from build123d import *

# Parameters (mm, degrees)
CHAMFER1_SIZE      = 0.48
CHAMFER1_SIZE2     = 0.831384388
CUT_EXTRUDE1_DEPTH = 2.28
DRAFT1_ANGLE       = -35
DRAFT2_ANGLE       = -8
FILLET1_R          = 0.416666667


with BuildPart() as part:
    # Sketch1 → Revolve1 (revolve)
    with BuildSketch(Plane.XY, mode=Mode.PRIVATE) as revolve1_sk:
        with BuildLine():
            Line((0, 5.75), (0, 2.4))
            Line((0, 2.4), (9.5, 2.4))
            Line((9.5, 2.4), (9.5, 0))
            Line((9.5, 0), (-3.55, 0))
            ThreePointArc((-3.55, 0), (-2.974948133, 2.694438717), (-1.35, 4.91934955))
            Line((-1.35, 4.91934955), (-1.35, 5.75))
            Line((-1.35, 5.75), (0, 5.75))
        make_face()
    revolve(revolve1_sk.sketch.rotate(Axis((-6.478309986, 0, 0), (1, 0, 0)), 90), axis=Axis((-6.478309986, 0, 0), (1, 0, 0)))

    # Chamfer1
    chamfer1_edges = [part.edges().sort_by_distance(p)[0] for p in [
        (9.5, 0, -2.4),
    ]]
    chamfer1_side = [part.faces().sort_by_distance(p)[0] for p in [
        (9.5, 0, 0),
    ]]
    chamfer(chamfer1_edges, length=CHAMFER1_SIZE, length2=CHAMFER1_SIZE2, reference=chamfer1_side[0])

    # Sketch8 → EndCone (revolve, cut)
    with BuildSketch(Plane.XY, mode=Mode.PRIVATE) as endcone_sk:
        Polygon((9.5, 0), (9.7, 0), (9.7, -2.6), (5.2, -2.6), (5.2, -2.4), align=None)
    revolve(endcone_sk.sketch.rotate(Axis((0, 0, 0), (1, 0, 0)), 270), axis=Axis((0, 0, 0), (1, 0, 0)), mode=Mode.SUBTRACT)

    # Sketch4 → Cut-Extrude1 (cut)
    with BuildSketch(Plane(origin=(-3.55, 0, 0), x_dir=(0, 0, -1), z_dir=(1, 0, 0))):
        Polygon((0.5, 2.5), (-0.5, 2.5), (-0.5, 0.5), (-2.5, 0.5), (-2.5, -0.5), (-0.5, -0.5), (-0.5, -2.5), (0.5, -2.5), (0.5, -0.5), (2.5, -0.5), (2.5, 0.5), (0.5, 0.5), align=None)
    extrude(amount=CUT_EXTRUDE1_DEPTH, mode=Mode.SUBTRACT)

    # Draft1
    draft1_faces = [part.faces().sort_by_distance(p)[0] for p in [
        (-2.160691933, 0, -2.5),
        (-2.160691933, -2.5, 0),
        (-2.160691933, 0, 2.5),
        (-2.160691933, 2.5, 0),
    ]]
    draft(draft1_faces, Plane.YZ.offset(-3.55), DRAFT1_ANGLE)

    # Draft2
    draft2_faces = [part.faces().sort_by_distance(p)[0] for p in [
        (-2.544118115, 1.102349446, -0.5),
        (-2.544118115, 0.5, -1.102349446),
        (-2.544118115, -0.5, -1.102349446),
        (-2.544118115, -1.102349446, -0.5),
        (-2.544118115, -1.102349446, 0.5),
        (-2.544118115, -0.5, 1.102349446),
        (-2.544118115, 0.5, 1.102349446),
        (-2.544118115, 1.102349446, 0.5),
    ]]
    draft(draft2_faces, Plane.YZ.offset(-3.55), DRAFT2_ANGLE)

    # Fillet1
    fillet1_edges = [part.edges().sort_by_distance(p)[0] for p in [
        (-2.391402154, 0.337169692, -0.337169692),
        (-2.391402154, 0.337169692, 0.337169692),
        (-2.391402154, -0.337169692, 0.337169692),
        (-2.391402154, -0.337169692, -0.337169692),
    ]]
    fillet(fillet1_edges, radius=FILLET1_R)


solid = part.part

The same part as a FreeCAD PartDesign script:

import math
import FreeCAD as App
import Part
import Sketcher

V = App.Vector


def edges_at(feature, points):
    """Names of the edges that pass closest to the given points."""
    edges = feature.Shape.Edges
    near = lambda p: min(range(len(edges)), key=lambda i: edges[i].distToShape(Part.Vertex(*p))[0])
    return sorted({f"Edge{near(p) + 1}" for p in points})


def faces_at(feature, points):
    """Names of the faces that lie closest to the given points."""
    faces = feature.Shape.Faces
    near = lambda p: min(range(len(faces)), key=lambda i: faces[i].distToShape(Part.Vertex(*p))[0])
    return sorted({f"Face{near(p) + 1}" for p in points})

doc = App.newDocument("Part")
body = doc.addObject("PartDesign::Body", "Body")

sketch1 = body.newObject("Sketcher::SketchObject", "Sketch")
sketch1.AttachmentSupport = (doc.getObject("XY_Plane"), [""])
sketch1.MapMode = "FlatFace"
sketch1.addGeometry([
    Part.LineSegment(V(0, 2.4, 0), V(0, 5.75, 0)),
    Part.LineSegment(V(0, 5.75, 0), V(-1.35, 5.75, 0)),
    Part.LineSegment(V(-1.35, 5.75, 0), V(-1.35, 4.91935, 0)),
    Part.ArcOfCircle(Part.Circle(V(3.05, 0, 0), V(0, 0, 1), 6.6), math.radians(131.810315), math.radians(180)),
    Part.LineSegment(V(-3.55, 0, 0), V(9.5, 0, 0)),
    Part.LineSegment(V(9.5, 0, 0), V(9.5, 2.4, 0)),
    Part.LineSegment(V(9.5, 2.4, 0), V(0, 2.4, 0)),
], False)
sketch1.addConstraint([
    Sketcher.Constraint("Coincident", 0, 2, 1, 1),
    Sketcher.Constraint("Coincident", 1, 2, 2, 1),
    Sketcher.Constraint("Coincident", 2, 2, 3, 1),
    Sketcher.Constraint("Coincident", 3, 2, 4, 1),
    Sketcher.Constraint("Coincident", 4, 2, 5, 1),
    Sketcher.Constraint("Coincident", 5, 2, 6, 1),
    Sketcher.Constraint("Coincident", 6, 2, 0, 1),
    Sketcher.Constraint("Vertical", 0),
    Sketcher.Constraint("Horizontal", 1),
    Sketcher.Constraint("Vertical", 2),
    Sketcher.Constraint("Horizontal", 4),
    Sketcher.Constraint("Vertical", 5),
    Sketcher.Constraint("Horizontal", 6),
    Sketcher.Constraint("PointOnObject", 3, 3, -1),
    Sketcher.Constraint("PointOnObject", 0, 2, -2),
    Sketcher.Constraint("PointOnObject", 3, 2, -1),
    Sketcher.Constraint("Radius", 3, 6.6),
    Sketcher.Constraint("DistanceX", 6, 2, 6, 1, 9.5),
    Sketcher.Constraint("DistanceY", 5, 1, 5, 2, 2.4),
    Sketcher.Constraint("DistanceX", 1, 2, 1, 1, 1.35),
    Sketcher.Constraint("DistanceX", 4, 1, 4, 2, 13.05),
    Sketcher.Constraint("DistanceY", 0, 1, 0, 2, 3.35),
])
revolution = body.newObject("PartDesign::Revolution", "Revolution")
revolution.Profile = sketch1
revolution.ReferenceAxis = (sketch1, ["H_Axis"])
revolution.Angle = 360
doc.recompute()

chamfer = body.newObject("PartDesign::Chamfer", "Chamfer")
chamfer.Base = (revolution, edges_at(revolution, [(9.5, 0, -2.4)]))
chamfer.ChamferType = "Two distances"
chamfer.Size = 0.48
chamfer.Size2 = 0.831384

sketch2 = body.newObject("Sketcher::SketchObject", "Sketch001")
sketch2.AttachmentSupport = (doc.getObject("XY_Plane"), [""])
sketch2.MapMode = "FlatFace"
sketch2.addGeometry([
    Part.LineSegment(V(9.7, 0, 0), V(9.5, 0, 0)),
    Part.LineSegment(V(9.5, 0, 0), V(5.2, -2.4, 0)),
    Part.LineSegment(V(5.2, -2.4, 0), V(5.2, -2.6, 0)),
    Part.LineSegment(V(5.2, -2.6, 0), V(9.7, -2.6, 0)),
    Part.LineSegment(V(9.7, -2.6, 0), V(9.7, 0, 0)),
], False)
sketch2.addConstraint([
    Sketcher.Constraint("Coincident", 0, 2, 1, 1),
    Sketcher.Constraint("Coincident", 1, 2, 2, 1),
    Sketcher.Constraint("Coincident", 2, 2, 3, 1),
    Sketcher.Constraint("Coincident", 3, 2, 4, 1),
    Sketcher.Constraint("Coincident", 4, 2, 0, 1),
    Sketcher.Constraint("Horizontal", 0),
    Sketcher.Constraint("Vertical", 2),
    Sketcher.Constraint("Horizontal", 3),
    Sketcher.Constraint("Vertical", 4),
    Sketcher.Constraint("PointOnObject", 0, 2, -1),
    Sketcher.Constraint("Equal", 0, 2),
    Sketcher.Constraint("DistanceX", 0, 2, 0, 1, 0.2),
    Sketcher.Constraint("DistanceX", 3, 1, 3, 2, 4.5),
    Sketcher.Constraint("DistanceY", 4, 1, 4, 2, 2.6),
    Sketcher.Constraint("DistanceX", -1, 1, 0, 2, 9.5),
])
groove = body.newObject("PartDesign::Groove", "Groove")
groove.Profile = sketch2
groove.ReferenceAxis = (sketch2, ["H_Axis"])
groove.Angle = 360

sketch3 = body.newObject("Sketcher::SketchObject", "Sketch002")
sketch3.AttachmentSupport = (doc.getObject("YZ_Plane"), [""])
sketch3.MapMode = "FlatFace"
sketch3.AttachmentOffset = App.Placement(V(0, 0, -3.55), App.Rotation())
sketch3.addGeometry([
    Part.LineSegment(V(2.5, -0.5, 0), V(2.5, 0.5, 0)),
    Part.LineSegment(V(2.5, 0.5, 0), V(0.5, 0.5, 0)),
    Part.LineSegment(V(0.5, 0.5, 0), V(0.5, 2.5, 0)),
    Part.LineSegment(V(0.5, 2.5, 0), V(-0.5, 2.5, 0)),
    Part.LineSegment(V(-0.5, 2.5, 0), V(-0.5, 0.5, 0)),
    Part.LineSegment(V(-0.5, 0.5, 0), V(-2.5, 0.5, 0)),
    Part.LineSegment(V(-2.5, 0.5, 0), V(-2.5, -0.5, 0)),
    Part.LineSegment(V(-2.5, -0.5, 0), V(-0.5, -0.5, 0)),
    Part.LineSegment(V(-0.5, -0.5, 0), V(-0.5, -2.5, 0)),
    Part.LineSegment(V(-0.5, -2.5, 0), V(0.5, -2.5, 0)),
    Part.LineSegment(V(0.5, -2.5, 0), V(0.5, -0.5, 0)),
    Part.LineSegment(V(0.5, -0.5, 0), V(2.5, -0.5, 0)),
], False)
sketch3.addConstraint([
    Sketcher.Constraint("Coincident", 0, 2, 1, 1),
    Sketcher.Constraint("Coincident", 1, 2, 2, 1),
    Sketcher.Constraint("Coincident", 2, 2, 3, 1),
    Sketcher.Constraint("Coincident", 3, 2, 4, 1),
    Sketcher.Constraint("Coincident", 4, 2, 5, 1),
    Sketcher.Constraint("Coincident", 5, 2, 6, 1),
    Sketcher.Constraint("Coincident", 6, 2, 7, 1),
    Sketcher.Constraint("Coincident", 7, 2, 8, 1),
    Sketcher.Constraint("Coincident", 8, 2, 9, 1),
    Sketcher.Constraint("Coincident", 9, 2, 10, 1),
    Sketcher.Constraint("Coincident", 10, 2, 11, 1),
    Sketcher.Constraint("Coincident", 11, 2, 0, 1),
    Sketcher.Constraint("Vertical", 0),
    Sketcher.Constraint("Horizontal", 1),
    Sketcher.Constraint("Vertical", 2),
    Sketcher.Constraint("Horizontal", 3),
    Sketcher.Constraint("Vertical", 4),
    Sketcher.Constraint("Horizontal", 5),
    Sketcher.Constraint("Vertical", 6),
    Sketcher.Constraint("Horizontal", 7),
    Sketcher.Constraint("Vertical", 8),
    Sketcher.Constraint("Horizontal", 9),
    Sketcher.Constraint("Vertical", 10),
    Sketcher.Constraint("Horizontal", 11),
    Sketcher.Constraint("Symmetric", 0, 2, 6, 2, -1, 1),
    Sketcher.Constraint("Symmetric", 2, 2, 8, 2, -1, 1),
    Sketcher.Constraint("Symmetric", 4, 2, 10, 2, -1, 1),
    Sketcher.Constraint("Symmetric", 1, 2, 4, 2, -2),
    Sketcher.Constraint("Equal", 9, 0),
    Sketcher.Constraint("Equal", 11, 2),
    Sketcher.Constraint("DistanceX", 1, 2, 1, 1, 2.0),
    Sketcher.Constraint("DistanceX", 3, 2, 3, 1, 1.0),
])
pocket1 = body.newObject("PartDesign::Pocket", "Pocket")
pocket1.Profile = sketch3
pocket1.Length = 2.28
pocket1.Reversed = True
doc.recompute()

datumplane = body.newObject("PartDesign::Plane", "DatumPlane")
datumplane.AttachmentSupport = (doc.getObject("YZ_Plane"), [""])
datumplane.MapMode = "FlatFace"
datumplane.AttachmentOffset = App.Placement(V(0, 0, -3.55), App.Rotation())
draft = body.newObject("PartDesign::Draft", "Draft")
draft.Base = (pocket1, faces_at(pocket1, [
    (-2.164, 0, -2.5),
    (-2.164, -2.5, 0),
    (-2.164, 0, 2.5),
    (-2.164, 2.5, 0),
]))
draft.NeutralPlane = (datumplane, [""])
draft.Angle = 35
draft.Reversed = True
doc.recompute()

datumplane2 = body.newObject("PartDesign::Plane", "DatumPlane001")
datumplane2.AttachmentSupport = (doc.getObject("YZ_Plane"), [""])
datumplane2.MapMode = "FlatFace"
datumplane2.AttachmentOffset = App.Placement(V(0, 0, -3.55), App.Rotation())
draft2 = body.newObject("PartDesign::Draft", "Draft001")
draft2.Base = (draft, faces_at(draft, [
    (-2.391, 1.359, -0.5),
    (-2.391, 0.5, -1.359),
    (-2.391, -0.5, -1.359),
    (-2.391, -1.359, -0.5),
    (-2.391, -1.359, 0.5),
    (-2.391, -0.5, 1.359),
    (-2.391, 0.5, 1.359),
    (-2.391, 1.359, 0.5),
]))
draft2.NeutralPlane = (datumplane2, [""])
draft2.Angle = 8
draft2.Reversed = True
doc.recompute()

fillet = body.newObject("PartDesign::Fillet", "Fillet")
fillet.Base = (draft2, edges_at(draft2, [
    (-2.391, 0.337, -0.337),
    (-2.391, 0.337, 0.337),
    (-2.391, -0.337, 0.337),
    (-2.391, -0.337, -0.337),
]))
fillet.Radius = 0.416667

doc.recompute()
